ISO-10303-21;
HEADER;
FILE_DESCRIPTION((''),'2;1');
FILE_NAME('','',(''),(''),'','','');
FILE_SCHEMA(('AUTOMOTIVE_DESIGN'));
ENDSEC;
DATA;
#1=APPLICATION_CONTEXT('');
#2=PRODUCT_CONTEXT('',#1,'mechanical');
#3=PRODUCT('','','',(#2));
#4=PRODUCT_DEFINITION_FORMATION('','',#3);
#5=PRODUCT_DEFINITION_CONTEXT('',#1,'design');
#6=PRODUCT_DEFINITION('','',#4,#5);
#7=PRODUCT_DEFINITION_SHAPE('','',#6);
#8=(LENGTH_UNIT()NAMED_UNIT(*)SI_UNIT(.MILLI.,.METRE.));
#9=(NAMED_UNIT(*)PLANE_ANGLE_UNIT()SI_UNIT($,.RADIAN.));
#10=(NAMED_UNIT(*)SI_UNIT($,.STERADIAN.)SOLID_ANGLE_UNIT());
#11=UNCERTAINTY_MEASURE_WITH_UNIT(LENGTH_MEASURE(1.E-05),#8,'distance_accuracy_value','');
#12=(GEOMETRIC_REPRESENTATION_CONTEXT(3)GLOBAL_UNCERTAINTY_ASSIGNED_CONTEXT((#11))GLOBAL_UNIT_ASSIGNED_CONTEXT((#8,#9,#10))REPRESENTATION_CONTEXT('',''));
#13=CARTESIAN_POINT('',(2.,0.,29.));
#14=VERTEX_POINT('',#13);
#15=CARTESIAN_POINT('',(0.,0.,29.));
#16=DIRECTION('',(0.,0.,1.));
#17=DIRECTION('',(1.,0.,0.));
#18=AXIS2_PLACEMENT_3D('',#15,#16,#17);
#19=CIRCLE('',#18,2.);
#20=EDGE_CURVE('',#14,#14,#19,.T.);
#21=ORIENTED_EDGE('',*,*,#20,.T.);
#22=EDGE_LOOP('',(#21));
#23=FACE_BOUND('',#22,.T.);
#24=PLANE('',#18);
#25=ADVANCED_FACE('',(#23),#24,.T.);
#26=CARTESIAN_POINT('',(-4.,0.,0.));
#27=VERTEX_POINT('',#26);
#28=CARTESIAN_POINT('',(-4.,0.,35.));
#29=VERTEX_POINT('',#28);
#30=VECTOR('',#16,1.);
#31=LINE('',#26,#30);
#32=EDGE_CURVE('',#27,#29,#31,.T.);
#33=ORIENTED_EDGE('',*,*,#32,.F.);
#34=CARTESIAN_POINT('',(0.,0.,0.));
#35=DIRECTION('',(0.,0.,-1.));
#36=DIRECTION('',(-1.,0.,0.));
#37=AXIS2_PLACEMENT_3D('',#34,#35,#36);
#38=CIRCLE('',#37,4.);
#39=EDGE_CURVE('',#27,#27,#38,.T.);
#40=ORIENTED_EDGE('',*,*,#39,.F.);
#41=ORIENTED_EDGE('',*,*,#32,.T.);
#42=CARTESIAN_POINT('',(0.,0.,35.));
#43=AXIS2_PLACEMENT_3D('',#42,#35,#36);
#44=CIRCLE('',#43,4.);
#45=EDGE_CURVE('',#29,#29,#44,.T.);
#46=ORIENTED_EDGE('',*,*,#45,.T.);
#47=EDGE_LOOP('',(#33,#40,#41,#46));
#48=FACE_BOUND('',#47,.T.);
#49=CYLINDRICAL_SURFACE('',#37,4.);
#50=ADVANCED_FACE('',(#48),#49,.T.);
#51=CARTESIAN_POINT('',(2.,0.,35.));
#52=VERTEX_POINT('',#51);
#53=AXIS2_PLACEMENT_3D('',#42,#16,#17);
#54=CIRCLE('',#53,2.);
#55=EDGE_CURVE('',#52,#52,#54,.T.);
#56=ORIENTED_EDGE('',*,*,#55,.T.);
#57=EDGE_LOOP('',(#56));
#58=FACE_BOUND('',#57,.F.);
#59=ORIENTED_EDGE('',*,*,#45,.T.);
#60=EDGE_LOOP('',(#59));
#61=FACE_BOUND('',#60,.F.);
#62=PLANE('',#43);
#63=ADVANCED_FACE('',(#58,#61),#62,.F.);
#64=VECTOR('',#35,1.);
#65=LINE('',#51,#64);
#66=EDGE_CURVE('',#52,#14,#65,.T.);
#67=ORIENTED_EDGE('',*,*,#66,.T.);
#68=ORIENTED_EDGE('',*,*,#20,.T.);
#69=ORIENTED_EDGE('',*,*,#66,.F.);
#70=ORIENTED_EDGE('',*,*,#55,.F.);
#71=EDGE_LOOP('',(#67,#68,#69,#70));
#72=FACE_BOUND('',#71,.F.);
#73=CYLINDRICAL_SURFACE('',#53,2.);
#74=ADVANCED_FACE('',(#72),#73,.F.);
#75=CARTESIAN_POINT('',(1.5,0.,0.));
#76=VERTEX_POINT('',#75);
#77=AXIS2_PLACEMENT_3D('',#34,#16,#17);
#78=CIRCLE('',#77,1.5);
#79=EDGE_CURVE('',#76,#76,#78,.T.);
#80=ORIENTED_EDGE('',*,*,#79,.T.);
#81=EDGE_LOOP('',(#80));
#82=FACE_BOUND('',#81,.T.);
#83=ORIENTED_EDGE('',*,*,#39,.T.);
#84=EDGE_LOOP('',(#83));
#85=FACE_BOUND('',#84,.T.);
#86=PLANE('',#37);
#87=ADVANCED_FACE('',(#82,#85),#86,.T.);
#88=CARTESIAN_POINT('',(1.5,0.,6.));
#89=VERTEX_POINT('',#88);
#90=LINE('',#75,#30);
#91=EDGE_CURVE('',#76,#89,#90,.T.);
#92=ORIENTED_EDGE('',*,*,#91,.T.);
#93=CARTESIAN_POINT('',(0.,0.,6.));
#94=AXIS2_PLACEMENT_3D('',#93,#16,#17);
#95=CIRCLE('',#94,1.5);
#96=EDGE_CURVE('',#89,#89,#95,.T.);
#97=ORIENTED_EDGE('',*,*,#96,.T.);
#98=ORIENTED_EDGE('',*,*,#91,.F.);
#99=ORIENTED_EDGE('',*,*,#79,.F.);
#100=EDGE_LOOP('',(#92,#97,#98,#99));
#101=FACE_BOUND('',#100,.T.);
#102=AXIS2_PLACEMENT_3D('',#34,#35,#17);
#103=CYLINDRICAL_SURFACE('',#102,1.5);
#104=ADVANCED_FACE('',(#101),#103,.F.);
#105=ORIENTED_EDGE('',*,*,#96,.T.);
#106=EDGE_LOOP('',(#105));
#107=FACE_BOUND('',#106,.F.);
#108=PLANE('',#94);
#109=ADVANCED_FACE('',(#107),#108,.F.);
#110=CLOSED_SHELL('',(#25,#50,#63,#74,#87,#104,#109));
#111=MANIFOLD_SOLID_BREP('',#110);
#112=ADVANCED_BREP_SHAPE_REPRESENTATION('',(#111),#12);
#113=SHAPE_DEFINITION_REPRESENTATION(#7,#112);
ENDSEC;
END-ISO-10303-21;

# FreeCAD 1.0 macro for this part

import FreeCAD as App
import Part
import Sketcher

V = App.Vector

doc = App.newDocument("Part")
body = doc.addObject("PartDesign::Body", "Body")

# Sketch on XY plane
sketch1 = doc.addObject("Sketcher::SketchObject", "Sketch")
body.addObject(sketch1)
sketch1.AttachmentSupport = (doc.XY_Plane, [""])
sketch1.MapMode = "FlatFace"
sketch1.addGeometry([
    Part.Circle(V(0, 0, 0), V(0, 0, 1), 3),
    Part.Circle(V(0, 0, 0), V(0, 0, 1), 1.5),
], False)
sketch1.addConstraint([
    Sketcher.Constraint("Coincident", 0, 3, -1, 1),
    Sketcher.Constraint("Coincident", 1, 3, -1, 1),
    Sketcher.Constraint("Diameter", 0, 6.0),
    Sketcher.Constraint("Diameter", 1, 3.0),
])
pad1 = doc.addObject("PartDesign::Pad", "Pad")
body.addObject(pad1)
pad1.Profile = sketch1
pad1.Length = 35

# Sketch on XY plane
sketch2 = doc.addObject("Sketcher::SketchObject", "Sketch001")
body.addObject(sketch2)
sketch2.AttachmentSupport = (doc.XY_Plane, [""])
sketch2.MapMode = "FlatFace"
sketch2.AttachmentOffset = App.Placement(V(0, 0, 29), App.Rotation())
sketch2.addGeometry(Part.Circle(V(0, 0, 0), V(0, 0, 1), 1.5), False)
sketch2.addConstraint([
    Sketcher.Constraint("Coincident", 0, 3, -1, 1),
    Sketcher.Constraint("Diameter", 0, 3.0),
])
pad2 = doc.addObject("PartDesign::Pad", "Pad001")
body.addObject(pad2)
pad2.Profile = sketch2
pad2.Length = 23
pad2.Reversed = True

# Sketch on XY plane
sketch3 = doc.addObject("Sketcher::SketchObject", "Sketch002")
body.addObject(sketch3)
sketch3.AttachmentSupport = (doc.XY_Plane, [""])
sketch3.MapMode = "FlatFace"
sketch3.addGeometry([
    Part.Circle(V(0, 0, 0), V(0, 0, 1), 4),
    Part.Circle(V(0, 0, 0), V(0, 0, 1), 3),
], False)
sketch3.addConstraint([
    Sketcher.Constraint("Coincident", 0, 3, -1, 1),
    Sketcher.Constraint("Coincident", 1, 3, -1, 1),
    Sketcher.Constraint("Diameter", 0, 8.0),
    Sketcher.Constraint("Diameter", 1, 6.0),
])
pad3 = doc.addObject("PartDesign::Pad", "Pad002")
body.addObject(pad3)
pad3.Profile = sketch3
pad3.Length = 35

# Sketch on XY plane
sketch4 = doc.addObject("Sketcher::SketchObject", "Sketch003")
body.addObject(sketch4)
sketch4.AttachmentSupport = (doc.XY_Plane, [""])
sketch4.MapMode = "FlatFace"
sketch4.AttachmentOffset = App.Placement(V(0, 0, 35), App.Rotation())
sketch4.addGeometry(Part.Circle(V(0, 0, 0), V(0, 0, 1), 2), False)
sketch4.addConstraint([
    Sketcher.Constraint("Coincident", 0, 3, -1, 1),
    Sketcher.Constraint("Diameter", 0, 4.0),
])
pocket1 = doc.addObject("PartDesign::Pocket", "Pocket")
body.addObject(pocket1)
pocket1.Profile = sketch4
pocket1.Length = 6

doc.recompute()
